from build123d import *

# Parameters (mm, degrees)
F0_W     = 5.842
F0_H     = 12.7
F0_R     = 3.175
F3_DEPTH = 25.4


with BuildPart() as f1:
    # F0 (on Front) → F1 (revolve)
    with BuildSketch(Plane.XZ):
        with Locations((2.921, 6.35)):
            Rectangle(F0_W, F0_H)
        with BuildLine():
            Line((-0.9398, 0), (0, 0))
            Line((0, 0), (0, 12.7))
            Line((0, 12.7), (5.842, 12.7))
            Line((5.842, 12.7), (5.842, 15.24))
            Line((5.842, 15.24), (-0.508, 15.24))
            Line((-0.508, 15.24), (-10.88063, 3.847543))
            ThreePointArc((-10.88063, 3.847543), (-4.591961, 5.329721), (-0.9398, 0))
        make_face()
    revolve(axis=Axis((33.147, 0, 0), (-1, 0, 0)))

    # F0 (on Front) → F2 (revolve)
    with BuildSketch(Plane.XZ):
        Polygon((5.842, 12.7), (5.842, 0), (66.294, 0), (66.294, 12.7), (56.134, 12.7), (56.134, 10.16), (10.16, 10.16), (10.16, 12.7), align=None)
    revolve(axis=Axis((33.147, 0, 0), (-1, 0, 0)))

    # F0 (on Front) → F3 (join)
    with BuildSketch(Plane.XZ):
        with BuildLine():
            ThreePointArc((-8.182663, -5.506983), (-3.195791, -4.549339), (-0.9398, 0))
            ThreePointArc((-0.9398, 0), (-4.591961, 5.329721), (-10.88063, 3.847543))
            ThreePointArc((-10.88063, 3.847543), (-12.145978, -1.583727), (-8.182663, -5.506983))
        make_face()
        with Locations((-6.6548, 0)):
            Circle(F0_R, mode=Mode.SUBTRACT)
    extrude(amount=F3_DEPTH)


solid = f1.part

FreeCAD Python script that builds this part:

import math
import FreeCAD as App
import Part
import Sketcher
Q = App.Units.Quantity


def add_polygon(sketch, points):
    """Adds a closed chain of lines whose ends are joined by coincident constraints."""
    first, n = sketch.GeometryCount, len(points)
    for a, b in zip(points, points[1:] + points[:1]):
        sketch.addGeometry(Part.LineSegment(App.Vector(*a, 0), App.Vector(*b, 0)), False)
    for i in range(n):
        sketch.addConstraint(Sketcher.Constraint("Coincident", first + i, 2, first + (i + 1) % n, 1))

doc = App.newDocument("Part")
body = doc.addObject("PartDesign::Body", "Body")

# Sketch on XZ plane
sketch1 = doc.addObject("Sketcher::SketchObject", "Sketch")
body.addObject(sketch1)
sketch1.AttachmentSupport = (doc.XZ_Plane, [""])
sketch1.MapMode = "FlatFace"
sketch1.addGeometry(Part.LineSegment(App.Vector(6, 0, 0), App.Vector(6, 15, 0)), False)
sketch1.addGeometry(Part.LineSegment(App.Vector(6, 15, 0), App.Vector(-1, 15, 0)), False)
sketch1.addGeometry(Part.LineSegment(App.Vector(-1, 15, 0), App.Vector(-11, 4, 0)), False)
sketch1.addGeometry(Part.ArcOfCircle(Part.Circle(App.Vector(-7, 0, 0), App.Vector(0, 0, 1), 6), math.radians(0), math.radians(138)), False)
sketch1.addGeometry(Part.LineSegment(App.Vector(-1, 0, 0), App.Vector(6, 0, 0)), False)
sketch1.addConstraint(Sketcher.Constraint("Coincident", 0, 2, 1, 1))
sketch1.addConstraint(Sketcher.Constraint("Coincident", 1, 2, 2, 1))
sketch1.addConstraint(Sketcher.Constraint("Tangent", 2, 2, 3, 2))
sketch1.addConstraint(Sketcher.Constraint("Coincident", 3, 1, 4, 1))
sketch1.addConstraint(Sketcher.Constraint("Coincident", 4, 2, 0, 1))
sketch1.addConstraint(Sketcher.Constraint("Vertical", 0))
sketch1.addConstraint(Sketcher.Constraint("Horizontal", 1))
sketch1.addConstraint(Sketcher.Constraint("Horizontal", 4))
sketch1.addConstraint(Sketcher.Constraint("PointOnObject", 3, 3, -1))
sketch1.addConstraint(Sketcher.Constraint("PointOnObject", 3, 1, -1))
sketch1.addConstraint(Sketcher.Constraint("DistanceY", 0, 1, 0, 2, Q("0.6 in")))
sketch1.addConstraint(Sketcher.Constraint("Radius", 3, Q("0.225 in")))
sketch1.addConstraint(Sketcher.Constraint("DistanceX", 1, 2, 1, 1, Q("0.25 in")))
sketch1.addConstraint(Sketcher.Constraint("DistanceX", 4, 1, 4, 2, Q("0.267 in")))
sketch1.addConstraint(Sketcher.Constraint("DistanceX", -1, 1, 0, 2, Q("0.23 in")))
revolution = doc.addObject("PartDesign::Revolution", "Revolution")
body.addObject(revolution)
revolution.Profile = sketch1
revolution.ReferenceAxis = (sketch1, ["H_Axis"])
revolution.Angle = 360

# Sketch on XZ plane
sketch2 = doc.addObject("Sketcher::SketchObject", "Sketch001")
body.addObject(sketch2)
sketch2.AttachmentSupport = (doc.XZ_Plane, [""])
sketch2.MapMode = "FlatFace"
add_polygon(sketch2, [(5.8, 12.7), (5.8, 0), (66.3, 0), (66.3, 12.7), (56.1, 12.7), (56.1, 10.2), (10.2, 10.2), (10.2, 12.7)])  # lines 0-7
sketch2.addConstraint(Sketcher.Constraint("Vertical", 0))
sketch2.addConstraint(Sketcher.Constraint("Horizontal", 1))
sketch2.addConstraint(Sketcher.Constraint("Vertical", 2))
sketch2.addConstraint(Sketcher.Constraint("Horizontal", 3))
sketch2.addConstraint(Sketcher.Constraint("Vertical", 4))
sketch2.addConstraint(Sketcher.Constraint("Horizontal", 5))
sketch2.addConstraint(Sketcher.Constraint("Vertical", 6))
sketch2.addConstraint(Sketcher.Constraint("Horizontal", 7))
sketch2.addConstraint(Sketcher.Constraint("PointOnObject", 0, 2, -1))
sketch2.addConstraint(Sketcher.Constraint("Horizontal", 3, 2, 6, 2))
sketch2.addConstraint(Sketcher.Constraint("DistanceX", 3, 2, 3, 1, Q("0.4 in")))
sketch2.addConstraint(Sketcher.Constraint("DistanceY", 0, 2, 0, 1, Q("0.5 in")))
sketch2.addConstraint(Sketcher.Constraint("DistanceY", 4, 2, 4, 1, Q("0.1 in")))
sketch2.addConstraint(Sketcher.Constraint("DistanceX", 1, 1, 1, 2, Q("2.38 in")))
sketch2.addConstraint(Sketcher.Constraint("DistanceX", 5, 2, 5, 1, Q("1.81 in")))
sketch2.addConstraint(Sketcher.Constraint("DistanceX", -1, 1, 5, 2, Q("0.4 in")))
revolution2 = doc.addObject("PartDesign::Revolution", "Revolution001")
body.addObject(revolution2)
revolution2.Profile = sketch2
revolution2.ReferenceAxis = (sketch2, ["H_Axis"])
revolution2.Angle = 360

# Sketch on XZ plane
sketch3 = doc.addObject("Sketcher::SketchObject", "Sketch002")
body.addObject(sketch3)
sketch3.AttachmentSupport = (doc.XZ_Plane, [""])
sketch3.MapMode = "FlatFace"
sketch3.addGeometry(Part.ArcOfCircle(Part.Circle(App.Vector(-6.7, 0, 0), App.Vector(0, 0, 1), 5.7), math.radians(-106), math.radians(0)), False)
sketch3.addGeometry(Part.ArcOfCircle(Part.Circle(App.Vector(-6.7, 0, 0), App.Vector(0, 0, 1), 5.7), math.radians(0), math.radians(138)), False)
sketch3.addGeometry(Part.ArcOfCircle(Part.Circle(App.Vector(-6.7, 0, 0), App.Vector(0, 0, 1), 5.7), math.radians(138), math.radians(254)), False)
sketch3.addGeometry(Part.Circle(App.Vector(-6.7, 0, 0), App.Vector(0, 0, 1), 3.2), False)
sketch3.addConstraint(Sketcher.Constraint("Tangent", 0, 2, 1, 1))
sketch3.addConstraint(Sketcher.Constraint("Tangent", 1, 2, 2, 1))
sketch3.addConstraint(Sketcher.Constraint("Tangent", 2, 2, 0, 1))
sketch3.addConstraint(Sketcher.Constraint("Coincident", 3, 3, 0, 3))
sketch3.addConstraint(Sketcher.Constraint("PointOnObject", 0, 3, -1))
sketch3.addConstraint(Sketcher.Constraint("PointOnObject", 0, 2, -1))
sketch3.addConstraint(Sketcher.Constraint("Diameter", 3, Q("0.25 in")))
sketch3.addConstraint(Sketcher.Constraint("Radius", 0, Q("0.225 in")))
sketch3.addConstraint(Sketcher.Constraint("DistanceX", 0, 3, -1, 1, Q("0.262 in")))
sketch3.addConstraint(Sketcher.Constraint("DistanceX", 1, 2, -1, 1, Q("10.88063 mm")))
sketch3.addConstraint(Sketcher.Constraint("DistanceX", 2, 2, -1, 1, Q("8.182663 mm")))
pad1 = doc.addObject("PartDesign::Pad", "Pad")
body.addObject(pad1)
pad1.Profile = sketch3
pad1.Length = Q("1 in")

doc.recompute()
